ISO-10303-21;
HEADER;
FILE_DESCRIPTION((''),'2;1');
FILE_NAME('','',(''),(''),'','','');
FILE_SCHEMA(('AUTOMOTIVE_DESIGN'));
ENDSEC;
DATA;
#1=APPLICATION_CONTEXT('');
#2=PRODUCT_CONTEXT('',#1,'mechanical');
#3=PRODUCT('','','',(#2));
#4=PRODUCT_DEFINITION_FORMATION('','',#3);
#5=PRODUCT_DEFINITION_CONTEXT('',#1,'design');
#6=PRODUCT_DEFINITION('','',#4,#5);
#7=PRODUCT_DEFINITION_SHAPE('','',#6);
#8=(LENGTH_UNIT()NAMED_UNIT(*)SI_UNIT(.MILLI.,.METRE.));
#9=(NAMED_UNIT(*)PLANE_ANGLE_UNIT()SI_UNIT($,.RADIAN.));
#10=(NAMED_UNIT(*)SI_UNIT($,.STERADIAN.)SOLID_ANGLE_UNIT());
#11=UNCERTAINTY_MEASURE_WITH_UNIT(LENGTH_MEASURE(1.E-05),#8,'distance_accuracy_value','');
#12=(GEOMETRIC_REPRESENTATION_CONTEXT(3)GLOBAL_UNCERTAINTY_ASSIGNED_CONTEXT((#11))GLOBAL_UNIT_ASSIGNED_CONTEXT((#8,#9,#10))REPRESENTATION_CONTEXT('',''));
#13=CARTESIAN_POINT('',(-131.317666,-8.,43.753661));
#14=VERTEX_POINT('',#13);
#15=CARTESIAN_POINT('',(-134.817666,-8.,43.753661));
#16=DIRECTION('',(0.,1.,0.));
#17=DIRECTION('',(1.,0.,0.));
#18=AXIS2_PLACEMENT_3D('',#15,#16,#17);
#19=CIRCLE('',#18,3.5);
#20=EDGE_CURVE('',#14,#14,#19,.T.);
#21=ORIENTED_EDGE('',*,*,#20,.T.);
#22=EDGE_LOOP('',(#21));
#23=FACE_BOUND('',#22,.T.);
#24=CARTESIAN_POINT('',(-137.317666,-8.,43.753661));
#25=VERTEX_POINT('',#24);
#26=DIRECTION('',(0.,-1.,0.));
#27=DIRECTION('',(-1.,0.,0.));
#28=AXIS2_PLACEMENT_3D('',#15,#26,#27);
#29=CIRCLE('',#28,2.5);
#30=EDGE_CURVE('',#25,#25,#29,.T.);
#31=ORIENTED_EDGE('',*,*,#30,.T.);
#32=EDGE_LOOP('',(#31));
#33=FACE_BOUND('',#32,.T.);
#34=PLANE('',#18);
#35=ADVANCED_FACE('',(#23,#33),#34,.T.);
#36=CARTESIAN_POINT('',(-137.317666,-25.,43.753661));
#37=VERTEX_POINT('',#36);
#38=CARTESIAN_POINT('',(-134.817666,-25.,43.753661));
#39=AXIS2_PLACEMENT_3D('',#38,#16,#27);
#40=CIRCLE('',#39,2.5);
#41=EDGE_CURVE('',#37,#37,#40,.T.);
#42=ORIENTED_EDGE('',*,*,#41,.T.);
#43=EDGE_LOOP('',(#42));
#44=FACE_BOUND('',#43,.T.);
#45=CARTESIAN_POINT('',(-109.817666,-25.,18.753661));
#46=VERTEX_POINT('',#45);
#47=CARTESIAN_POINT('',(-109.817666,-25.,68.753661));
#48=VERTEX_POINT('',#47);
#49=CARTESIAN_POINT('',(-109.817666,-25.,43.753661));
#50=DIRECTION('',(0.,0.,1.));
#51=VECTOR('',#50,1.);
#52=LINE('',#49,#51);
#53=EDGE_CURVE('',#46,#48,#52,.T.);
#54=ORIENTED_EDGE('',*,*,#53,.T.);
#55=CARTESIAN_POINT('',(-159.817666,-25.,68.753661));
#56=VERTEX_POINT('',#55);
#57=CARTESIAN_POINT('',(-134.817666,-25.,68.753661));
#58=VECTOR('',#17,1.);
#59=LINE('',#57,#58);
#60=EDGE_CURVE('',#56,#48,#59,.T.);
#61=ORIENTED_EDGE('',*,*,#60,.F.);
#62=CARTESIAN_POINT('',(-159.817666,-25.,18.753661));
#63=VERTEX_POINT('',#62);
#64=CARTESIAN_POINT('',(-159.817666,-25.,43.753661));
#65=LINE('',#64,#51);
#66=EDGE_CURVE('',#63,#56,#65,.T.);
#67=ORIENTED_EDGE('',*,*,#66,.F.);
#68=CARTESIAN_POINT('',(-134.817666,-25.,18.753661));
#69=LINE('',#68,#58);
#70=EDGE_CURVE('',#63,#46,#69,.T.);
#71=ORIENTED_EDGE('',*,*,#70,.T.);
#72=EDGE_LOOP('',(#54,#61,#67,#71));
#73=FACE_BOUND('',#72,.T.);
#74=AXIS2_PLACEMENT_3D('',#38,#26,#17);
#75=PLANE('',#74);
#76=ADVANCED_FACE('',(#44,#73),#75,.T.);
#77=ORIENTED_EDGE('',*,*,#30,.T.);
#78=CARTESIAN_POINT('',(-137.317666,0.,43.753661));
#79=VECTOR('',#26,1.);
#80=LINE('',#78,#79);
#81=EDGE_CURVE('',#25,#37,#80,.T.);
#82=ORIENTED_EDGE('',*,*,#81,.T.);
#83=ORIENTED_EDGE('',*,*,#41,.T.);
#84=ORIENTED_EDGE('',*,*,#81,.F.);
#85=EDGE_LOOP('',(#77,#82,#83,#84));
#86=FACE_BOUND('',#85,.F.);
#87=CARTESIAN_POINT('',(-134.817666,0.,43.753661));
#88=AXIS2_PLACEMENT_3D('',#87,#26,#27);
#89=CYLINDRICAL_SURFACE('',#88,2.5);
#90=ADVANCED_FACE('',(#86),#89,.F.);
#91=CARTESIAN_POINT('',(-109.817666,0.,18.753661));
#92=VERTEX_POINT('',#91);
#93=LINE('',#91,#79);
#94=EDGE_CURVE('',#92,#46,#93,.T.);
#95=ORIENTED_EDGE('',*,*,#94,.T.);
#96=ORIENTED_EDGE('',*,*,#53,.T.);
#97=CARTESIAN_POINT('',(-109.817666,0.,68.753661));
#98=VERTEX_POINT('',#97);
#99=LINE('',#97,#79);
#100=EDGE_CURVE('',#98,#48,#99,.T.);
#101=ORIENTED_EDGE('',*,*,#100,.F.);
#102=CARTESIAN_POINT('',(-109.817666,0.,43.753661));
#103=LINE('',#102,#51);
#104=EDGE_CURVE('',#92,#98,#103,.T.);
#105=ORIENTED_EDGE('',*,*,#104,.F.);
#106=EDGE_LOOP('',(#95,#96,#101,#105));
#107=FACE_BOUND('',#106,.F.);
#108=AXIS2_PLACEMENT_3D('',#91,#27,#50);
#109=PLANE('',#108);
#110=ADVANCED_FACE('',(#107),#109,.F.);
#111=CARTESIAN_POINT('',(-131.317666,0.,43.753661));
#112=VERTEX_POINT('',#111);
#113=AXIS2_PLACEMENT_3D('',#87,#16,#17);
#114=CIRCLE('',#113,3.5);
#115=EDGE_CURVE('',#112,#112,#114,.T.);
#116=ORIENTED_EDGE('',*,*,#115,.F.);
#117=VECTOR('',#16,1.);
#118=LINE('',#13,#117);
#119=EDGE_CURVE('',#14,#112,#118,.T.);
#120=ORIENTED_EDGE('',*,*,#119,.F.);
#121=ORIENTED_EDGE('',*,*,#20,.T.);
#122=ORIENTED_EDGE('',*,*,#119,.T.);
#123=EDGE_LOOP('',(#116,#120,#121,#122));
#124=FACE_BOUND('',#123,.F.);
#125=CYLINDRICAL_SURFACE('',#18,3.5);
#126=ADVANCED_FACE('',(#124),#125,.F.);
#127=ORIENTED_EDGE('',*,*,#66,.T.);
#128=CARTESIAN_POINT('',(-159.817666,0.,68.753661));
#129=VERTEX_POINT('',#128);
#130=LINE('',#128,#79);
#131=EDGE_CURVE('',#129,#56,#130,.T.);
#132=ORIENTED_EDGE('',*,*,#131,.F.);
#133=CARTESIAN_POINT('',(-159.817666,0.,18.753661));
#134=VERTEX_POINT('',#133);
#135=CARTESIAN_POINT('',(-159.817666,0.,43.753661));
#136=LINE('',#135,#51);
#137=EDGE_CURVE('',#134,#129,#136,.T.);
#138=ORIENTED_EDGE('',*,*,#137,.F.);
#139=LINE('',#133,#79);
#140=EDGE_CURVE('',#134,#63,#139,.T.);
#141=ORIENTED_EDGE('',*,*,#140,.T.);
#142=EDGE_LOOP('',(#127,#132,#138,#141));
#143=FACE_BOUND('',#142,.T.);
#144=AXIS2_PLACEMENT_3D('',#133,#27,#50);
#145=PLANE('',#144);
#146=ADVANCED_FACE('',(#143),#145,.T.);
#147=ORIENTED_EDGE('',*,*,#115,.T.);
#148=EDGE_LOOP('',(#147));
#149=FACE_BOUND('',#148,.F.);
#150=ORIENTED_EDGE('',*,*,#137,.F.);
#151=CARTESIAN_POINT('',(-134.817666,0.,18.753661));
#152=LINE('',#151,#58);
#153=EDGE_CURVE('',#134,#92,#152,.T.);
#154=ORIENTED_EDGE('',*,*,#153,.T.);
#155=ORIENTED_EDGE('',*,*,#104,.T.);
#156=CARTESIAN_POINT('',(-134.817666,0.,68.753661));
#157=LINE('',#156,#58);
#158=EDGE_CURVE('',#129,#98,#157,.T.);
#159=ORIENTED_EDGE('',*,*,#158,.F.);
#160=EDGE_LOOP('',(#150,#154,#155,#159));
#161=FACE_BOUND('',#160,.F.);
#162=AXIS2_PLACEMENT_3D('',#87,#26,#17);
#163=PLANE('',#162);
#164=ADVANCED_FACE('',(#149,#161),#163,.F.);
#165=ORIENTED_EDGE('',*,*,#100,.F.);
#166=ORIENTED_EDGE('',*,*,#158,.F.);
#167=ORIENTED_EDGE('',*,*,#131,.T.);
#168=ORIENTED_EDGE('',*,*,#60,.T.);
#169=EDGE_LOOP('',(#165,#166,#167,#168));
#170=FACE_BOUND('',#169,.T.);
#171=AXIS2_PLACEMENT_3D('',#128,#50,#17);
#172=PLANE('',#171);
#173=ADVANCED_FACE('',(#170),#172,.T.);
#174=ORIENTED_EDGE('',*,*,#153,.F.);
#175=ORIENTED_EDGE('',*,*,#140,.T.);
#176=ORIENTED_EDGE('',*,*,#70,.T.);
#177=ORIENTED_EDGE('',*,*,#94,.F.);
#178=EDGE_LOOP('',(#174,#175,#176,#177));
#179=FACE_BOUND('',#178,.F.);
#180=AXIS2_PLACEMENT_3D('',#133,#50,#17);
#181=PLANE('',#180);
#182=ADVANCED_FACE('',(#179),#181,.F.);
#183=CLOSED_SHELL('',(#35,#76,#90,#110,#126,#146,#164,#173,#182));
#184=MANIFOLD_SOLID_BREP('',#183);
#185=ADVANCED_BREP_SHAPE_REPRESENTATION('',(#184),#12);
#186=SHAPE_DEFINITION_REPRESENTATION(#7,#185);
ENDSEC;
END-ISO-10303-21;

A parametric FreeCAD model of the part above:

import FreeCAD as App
import Part
import Sketcher

V = App.Vector

doc = App.newDocument("Part")
body = doc.addObject("PartDesign::Body", "Body")

# Sketch on XZ plane
sketch1 = body.newObject("Sketcher::SketchObject", "Sketch")
sketch1.AttachmentSupport = (doc.getObject("XZ_Plane"), [""])
sketch1.MapMode = "FlatFace"
sketch1.addGeometry([
    Part.LineSegment(V(-160, 69, 0), V(-160, 19, 0)),
    Part.LineSegment(V(-160, 19, 0), V(-110, 19, 0)),
    Part.LineSegment(V(-110, 19, 0), V(-110, 69, 0)),
    Part.LineSegment(V(-110, 69, 0), V(-160, 69, 0)),
], False)
sketch1.addConstraint([
    Sketcher.Constraint("Coincident", 0, 2, 1, 1),
    Sketcher.Constraint("Coincident", 1, 2, 2, 1),
    Sketcher.Constraint("Coincident", 2, 2, 3, 1),
    Sketcher.Constraint("Coincident", 3, 2, 0, 1),
    Sketcher.Constraint("Vertical", 0),
    Sketcher.Constraint("Horizontal", 1),
    Sketcher.Constraint("Vertical", 2),
    Sketcher.Constraint("Horizontal", 3),
    Sketcher.Constraint("Equal", 3, 0),
    Sketcher.Constraint("DistanceX", 1, 1, 1, 2, 50.0),
    Sketcher.Constraint("DistanceY", -1, 1, 0, 2, 18.753661),
    Sketcher.Constraint("DistanceX", 0, 2, -1, 1, 159.817666),
])
pad1 = body.newObject("PartDesign::Pad", "Pad")
pad1.Profile = sketch1
pad1.Length = 25

# Sketch on XZ plane
sketch2 = body.newObject("Sketcher::SketchObject", "Sketch001")
sketch2.AttachmentSupport = (doc.getObject("XZ_Plane"), [""])
sketch2.MapMode = "FlatFace"
sketch2.addGeometry(Part.Circle(V(-134.8, 43.8, 0), V(0, 0, 1), 2.5), False)
sketch2.addConstraint([
    Sketcher.Constraint("Diameter", 0, 5.0),
    Sketcher.Constraint("DistanceY", -1, 1, 0, 3, 43.753661),
    Sketcher.Constraint("DistanceX", 0, 3, -1, 1, 134.817666),
])
doc.recompute()
hole = body.newObject("PartDesign::Hole", "Hole")
hole.Profile = sketch2
hole.ThreadType = "None"
hole.Diameter = 5
hole.DepthType = "Dimension"
hole.Depth = 25
hole.DrillPoint = "Angled"
hole.DrillPointAngle = 118
hole.HoleCutType = "Counterbore"
hole.HoleCutDiameter = 7
hole.HoleCutDepth = 8
hole.Reversed = True

doc.recompute()
